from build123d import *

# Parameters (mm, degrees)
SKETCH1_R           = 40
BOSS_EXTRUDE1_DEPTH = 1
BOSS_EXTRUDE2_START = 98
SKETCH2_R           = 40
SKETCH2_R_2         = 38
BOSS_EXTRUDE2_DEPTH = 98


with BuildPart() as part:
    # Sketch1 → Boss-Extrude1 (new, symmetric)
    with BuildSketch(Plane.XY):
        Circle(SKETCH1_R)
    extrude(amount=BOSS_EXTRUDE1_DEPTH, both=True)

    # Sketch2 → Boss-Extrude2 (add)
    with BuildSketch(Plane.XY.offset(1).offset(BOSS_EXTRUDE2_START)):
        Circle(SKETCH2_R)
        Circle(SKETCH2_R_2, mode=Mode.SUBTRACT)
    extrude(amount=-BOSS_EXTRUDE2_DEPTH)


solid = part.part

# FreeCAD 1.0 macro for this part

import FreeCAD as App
import Part
import Sketcher
from FreeCAD import Vector
Q = App.Units.Quantity

doc = App.newDocument("Part")
params = doc.addObject("Spreadsheet::Sheet", "Params")
for row, (alias, value) in enumerate([
    ("sketch1_diameter", "80 mm"),
    ("pad1_length", "2 mm"),
    ("sketch2_diameter", "80 mm"),
    ("sketch2_diameter2", "76 mm"),
    ("pad2_length", "98 mm"),
], start=1):
    params.set(f"A{row}", alias)
    params.set(f"B{row}", "=" + value)
    params.setAlias(f"B{row}", alias)

body = doc.addObject("PartDesign::Body", "Body")

# Sketch on XY plane
sketch1 = body.newObject("Sketcher::SketchObject", "Sketch")
sketch1.AttachmentSupport = (doc.getObject("XY_Plane"), [""])
sketch1.MapMode = "FlatFace"
sketch1.addGeometry(Part.Circle(Vector(0, 0, 0), Vector(0, 0, 1), 40), False)
sketch1.addConstraint(Sketcher.Constraint("Coincident", 0, 3, -1, 1))
sketch1.addConstraint(Sketcher.Constraint("Diameter", 0, Q("80 mm")))
sketch1.setExpression("Constraints[1]", "Params.sketch1_diameter")
pad1 = body.newObject("PartDesign::Pad", "Pad")
pad1.Profile = sketch1
pad1.setExpression("Length", "Params.pad1_length")
pad1.Midplane = True

# Sketch on XY plane
sketch2 = body.newObject("Sketcher::SketchObject", "Sketch001")
sketch2.AttachmentSupport = (doc.getObject("XY_Plane"), [""])
sketch2.MapMode = "FlatFace"
sketch2.AttachmentOffset = App.Placement(Vector(0, 0, 99), App.Rotation())
sketch2.addGeometry(Part.Circle(Vector(0, 0, 0), Vector(0, 0, 1), 40), False)
sketch2.addGeometry(Part.Circle(Vector(0, 0, 0), Vector(0, 0, 1), 38), False)
sketch2.addConstraint(Sketcher.Constraint("Coincident", 0, 3, -1, 1))
sketch2.addConstraint(Sketcher.Constraint("Coincident", 1, 3, -1, 1))
sketch2.addConstraint(Sketcher.Constraint("Diameter", 0, Q("80 mm")))
sketch2.addConstraint(Sketcher.Constraint("Diameter", 1, Q("76 mm")))
sketch2.setExpression("Constraints[2]", "Params.sketch2_diameter")
sketch2.setExpression("Constraints[3]", "Params.sketch2_diameter2")
pad2 = body.newObject("PartDesign::Pad", "Pad001")
pad2.Profile = sketch2
pad2.setExpression("Length", "Params.pad2_length")
pad2.Reversed = True

doc.recompute()
